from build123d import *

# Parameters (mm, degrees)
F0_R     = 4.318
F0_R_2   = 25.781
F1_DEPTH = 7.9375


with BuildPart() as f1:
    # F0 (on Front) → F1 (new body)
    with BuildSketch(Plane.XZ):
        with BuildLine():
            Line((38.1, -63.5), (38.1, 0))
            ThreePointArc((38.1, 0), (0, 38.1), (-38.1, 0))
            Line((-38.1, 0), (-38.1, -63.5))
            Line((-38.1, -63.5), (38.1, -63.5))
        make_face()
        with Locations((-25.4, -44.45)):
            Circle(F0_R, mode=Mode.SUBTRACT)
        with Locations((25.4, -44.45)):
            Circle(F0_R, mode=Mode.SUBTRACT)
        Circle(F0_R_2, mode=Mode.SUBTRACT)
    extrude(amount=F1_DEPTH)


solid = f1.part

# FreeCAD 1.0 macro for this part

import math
import FreeCAD as App
import Part
import Sketcher
from FreeCAD import Vector
Q = App.Units.Quantity

doc = App.newDocument("Part")
body = doc.addObject("PartDesign::Body", "Body")

sketch1 = body.newObject("Sketcher::SketchObject", "Sketch")
sketch1.AttachmentSupport = (doc.getObject("XZ_Plane"), [""])
sketch1.MapMode = "FlatFace"
sketch1.addGeometry([
    Part.LineSegment(Vector(38.1, -63.5, 0), Vector(38.1, 0, 0)),
    Part.ArcOfCircle(Part.Circle(Vector(0, 0, 0), Vector(0, 0, 1), 38.1), math.radians(0), math.radians(180)),
    Part.LineSegment(Vector(-38.1, 0, 0), Vector(-38.1, -63.5, 0)),
    Part.LineSegment(Vector(-38.1, -63.5, 0), Vector(38.1, -63.5, 0)),
    Part.Circle(Vector(-25.4, -44.5, 0), Vector(0, 0, 1), 4.3),
    Part.Circle(Vector(25.4, -44.5, 0), Vector(0, 0, 1), 4.3),
    Part.Circle(Vector(0, 0, 0), Vector(0, 0, 1), 25.8),
], False)
sketch1.addConstraint([
    Sketcher.Constraint("Tangent", 0, 2, 1, 1),
    Sketcher.Constraint("Tangent", 1, 2, 2, 1),
    Sketcher.Constraint("Coincident", 2, 2, 3, 1),
    Sketcher.Constraint("Coincident", 3, 2, 0, 1),
    Sketcher.Constraint("Vertical", 0),
    Sketcher.Constraint("Vertical", 2),
    Sketcher.Constraint("Horizontal", 3),
    Sketcher.Constraint("Coincident", 1, 3, -1, 1),
    Sketcher.Constraint("Coincident", 6, 3, -1, 1),
    Sketcher.Constraint("Equal", 4, 5),
    Sketcher.Constraint("Symmetric", 4, 3, 5, 3, -2),
    Sketcher.Constraint("Radius", 1, Q("1.5 in")),
    Sketcher.Constraint("Diameter", 4, Q("0.34 in")),
    Sketcher.Constraint("Diameter", 6, Q("2.03 in")),
    Sketcher.Constraint("DistanceY", 0, 1, 0, 2, Q("2.5 in")),
    Sketcher.Constraint("DistanceX", 4, 3, -1, 1, Q("1 in")),
    Sketcher.Constraint("DistanceY", 4, 3, -1, 1, Q("1.75 in")),
])
pad1 = body.newObject("PartDesign::Pad", "Pad")
pad1.Profile = sketch1
pad1.Length = Q("0.3125 in")

doc.recompute()
